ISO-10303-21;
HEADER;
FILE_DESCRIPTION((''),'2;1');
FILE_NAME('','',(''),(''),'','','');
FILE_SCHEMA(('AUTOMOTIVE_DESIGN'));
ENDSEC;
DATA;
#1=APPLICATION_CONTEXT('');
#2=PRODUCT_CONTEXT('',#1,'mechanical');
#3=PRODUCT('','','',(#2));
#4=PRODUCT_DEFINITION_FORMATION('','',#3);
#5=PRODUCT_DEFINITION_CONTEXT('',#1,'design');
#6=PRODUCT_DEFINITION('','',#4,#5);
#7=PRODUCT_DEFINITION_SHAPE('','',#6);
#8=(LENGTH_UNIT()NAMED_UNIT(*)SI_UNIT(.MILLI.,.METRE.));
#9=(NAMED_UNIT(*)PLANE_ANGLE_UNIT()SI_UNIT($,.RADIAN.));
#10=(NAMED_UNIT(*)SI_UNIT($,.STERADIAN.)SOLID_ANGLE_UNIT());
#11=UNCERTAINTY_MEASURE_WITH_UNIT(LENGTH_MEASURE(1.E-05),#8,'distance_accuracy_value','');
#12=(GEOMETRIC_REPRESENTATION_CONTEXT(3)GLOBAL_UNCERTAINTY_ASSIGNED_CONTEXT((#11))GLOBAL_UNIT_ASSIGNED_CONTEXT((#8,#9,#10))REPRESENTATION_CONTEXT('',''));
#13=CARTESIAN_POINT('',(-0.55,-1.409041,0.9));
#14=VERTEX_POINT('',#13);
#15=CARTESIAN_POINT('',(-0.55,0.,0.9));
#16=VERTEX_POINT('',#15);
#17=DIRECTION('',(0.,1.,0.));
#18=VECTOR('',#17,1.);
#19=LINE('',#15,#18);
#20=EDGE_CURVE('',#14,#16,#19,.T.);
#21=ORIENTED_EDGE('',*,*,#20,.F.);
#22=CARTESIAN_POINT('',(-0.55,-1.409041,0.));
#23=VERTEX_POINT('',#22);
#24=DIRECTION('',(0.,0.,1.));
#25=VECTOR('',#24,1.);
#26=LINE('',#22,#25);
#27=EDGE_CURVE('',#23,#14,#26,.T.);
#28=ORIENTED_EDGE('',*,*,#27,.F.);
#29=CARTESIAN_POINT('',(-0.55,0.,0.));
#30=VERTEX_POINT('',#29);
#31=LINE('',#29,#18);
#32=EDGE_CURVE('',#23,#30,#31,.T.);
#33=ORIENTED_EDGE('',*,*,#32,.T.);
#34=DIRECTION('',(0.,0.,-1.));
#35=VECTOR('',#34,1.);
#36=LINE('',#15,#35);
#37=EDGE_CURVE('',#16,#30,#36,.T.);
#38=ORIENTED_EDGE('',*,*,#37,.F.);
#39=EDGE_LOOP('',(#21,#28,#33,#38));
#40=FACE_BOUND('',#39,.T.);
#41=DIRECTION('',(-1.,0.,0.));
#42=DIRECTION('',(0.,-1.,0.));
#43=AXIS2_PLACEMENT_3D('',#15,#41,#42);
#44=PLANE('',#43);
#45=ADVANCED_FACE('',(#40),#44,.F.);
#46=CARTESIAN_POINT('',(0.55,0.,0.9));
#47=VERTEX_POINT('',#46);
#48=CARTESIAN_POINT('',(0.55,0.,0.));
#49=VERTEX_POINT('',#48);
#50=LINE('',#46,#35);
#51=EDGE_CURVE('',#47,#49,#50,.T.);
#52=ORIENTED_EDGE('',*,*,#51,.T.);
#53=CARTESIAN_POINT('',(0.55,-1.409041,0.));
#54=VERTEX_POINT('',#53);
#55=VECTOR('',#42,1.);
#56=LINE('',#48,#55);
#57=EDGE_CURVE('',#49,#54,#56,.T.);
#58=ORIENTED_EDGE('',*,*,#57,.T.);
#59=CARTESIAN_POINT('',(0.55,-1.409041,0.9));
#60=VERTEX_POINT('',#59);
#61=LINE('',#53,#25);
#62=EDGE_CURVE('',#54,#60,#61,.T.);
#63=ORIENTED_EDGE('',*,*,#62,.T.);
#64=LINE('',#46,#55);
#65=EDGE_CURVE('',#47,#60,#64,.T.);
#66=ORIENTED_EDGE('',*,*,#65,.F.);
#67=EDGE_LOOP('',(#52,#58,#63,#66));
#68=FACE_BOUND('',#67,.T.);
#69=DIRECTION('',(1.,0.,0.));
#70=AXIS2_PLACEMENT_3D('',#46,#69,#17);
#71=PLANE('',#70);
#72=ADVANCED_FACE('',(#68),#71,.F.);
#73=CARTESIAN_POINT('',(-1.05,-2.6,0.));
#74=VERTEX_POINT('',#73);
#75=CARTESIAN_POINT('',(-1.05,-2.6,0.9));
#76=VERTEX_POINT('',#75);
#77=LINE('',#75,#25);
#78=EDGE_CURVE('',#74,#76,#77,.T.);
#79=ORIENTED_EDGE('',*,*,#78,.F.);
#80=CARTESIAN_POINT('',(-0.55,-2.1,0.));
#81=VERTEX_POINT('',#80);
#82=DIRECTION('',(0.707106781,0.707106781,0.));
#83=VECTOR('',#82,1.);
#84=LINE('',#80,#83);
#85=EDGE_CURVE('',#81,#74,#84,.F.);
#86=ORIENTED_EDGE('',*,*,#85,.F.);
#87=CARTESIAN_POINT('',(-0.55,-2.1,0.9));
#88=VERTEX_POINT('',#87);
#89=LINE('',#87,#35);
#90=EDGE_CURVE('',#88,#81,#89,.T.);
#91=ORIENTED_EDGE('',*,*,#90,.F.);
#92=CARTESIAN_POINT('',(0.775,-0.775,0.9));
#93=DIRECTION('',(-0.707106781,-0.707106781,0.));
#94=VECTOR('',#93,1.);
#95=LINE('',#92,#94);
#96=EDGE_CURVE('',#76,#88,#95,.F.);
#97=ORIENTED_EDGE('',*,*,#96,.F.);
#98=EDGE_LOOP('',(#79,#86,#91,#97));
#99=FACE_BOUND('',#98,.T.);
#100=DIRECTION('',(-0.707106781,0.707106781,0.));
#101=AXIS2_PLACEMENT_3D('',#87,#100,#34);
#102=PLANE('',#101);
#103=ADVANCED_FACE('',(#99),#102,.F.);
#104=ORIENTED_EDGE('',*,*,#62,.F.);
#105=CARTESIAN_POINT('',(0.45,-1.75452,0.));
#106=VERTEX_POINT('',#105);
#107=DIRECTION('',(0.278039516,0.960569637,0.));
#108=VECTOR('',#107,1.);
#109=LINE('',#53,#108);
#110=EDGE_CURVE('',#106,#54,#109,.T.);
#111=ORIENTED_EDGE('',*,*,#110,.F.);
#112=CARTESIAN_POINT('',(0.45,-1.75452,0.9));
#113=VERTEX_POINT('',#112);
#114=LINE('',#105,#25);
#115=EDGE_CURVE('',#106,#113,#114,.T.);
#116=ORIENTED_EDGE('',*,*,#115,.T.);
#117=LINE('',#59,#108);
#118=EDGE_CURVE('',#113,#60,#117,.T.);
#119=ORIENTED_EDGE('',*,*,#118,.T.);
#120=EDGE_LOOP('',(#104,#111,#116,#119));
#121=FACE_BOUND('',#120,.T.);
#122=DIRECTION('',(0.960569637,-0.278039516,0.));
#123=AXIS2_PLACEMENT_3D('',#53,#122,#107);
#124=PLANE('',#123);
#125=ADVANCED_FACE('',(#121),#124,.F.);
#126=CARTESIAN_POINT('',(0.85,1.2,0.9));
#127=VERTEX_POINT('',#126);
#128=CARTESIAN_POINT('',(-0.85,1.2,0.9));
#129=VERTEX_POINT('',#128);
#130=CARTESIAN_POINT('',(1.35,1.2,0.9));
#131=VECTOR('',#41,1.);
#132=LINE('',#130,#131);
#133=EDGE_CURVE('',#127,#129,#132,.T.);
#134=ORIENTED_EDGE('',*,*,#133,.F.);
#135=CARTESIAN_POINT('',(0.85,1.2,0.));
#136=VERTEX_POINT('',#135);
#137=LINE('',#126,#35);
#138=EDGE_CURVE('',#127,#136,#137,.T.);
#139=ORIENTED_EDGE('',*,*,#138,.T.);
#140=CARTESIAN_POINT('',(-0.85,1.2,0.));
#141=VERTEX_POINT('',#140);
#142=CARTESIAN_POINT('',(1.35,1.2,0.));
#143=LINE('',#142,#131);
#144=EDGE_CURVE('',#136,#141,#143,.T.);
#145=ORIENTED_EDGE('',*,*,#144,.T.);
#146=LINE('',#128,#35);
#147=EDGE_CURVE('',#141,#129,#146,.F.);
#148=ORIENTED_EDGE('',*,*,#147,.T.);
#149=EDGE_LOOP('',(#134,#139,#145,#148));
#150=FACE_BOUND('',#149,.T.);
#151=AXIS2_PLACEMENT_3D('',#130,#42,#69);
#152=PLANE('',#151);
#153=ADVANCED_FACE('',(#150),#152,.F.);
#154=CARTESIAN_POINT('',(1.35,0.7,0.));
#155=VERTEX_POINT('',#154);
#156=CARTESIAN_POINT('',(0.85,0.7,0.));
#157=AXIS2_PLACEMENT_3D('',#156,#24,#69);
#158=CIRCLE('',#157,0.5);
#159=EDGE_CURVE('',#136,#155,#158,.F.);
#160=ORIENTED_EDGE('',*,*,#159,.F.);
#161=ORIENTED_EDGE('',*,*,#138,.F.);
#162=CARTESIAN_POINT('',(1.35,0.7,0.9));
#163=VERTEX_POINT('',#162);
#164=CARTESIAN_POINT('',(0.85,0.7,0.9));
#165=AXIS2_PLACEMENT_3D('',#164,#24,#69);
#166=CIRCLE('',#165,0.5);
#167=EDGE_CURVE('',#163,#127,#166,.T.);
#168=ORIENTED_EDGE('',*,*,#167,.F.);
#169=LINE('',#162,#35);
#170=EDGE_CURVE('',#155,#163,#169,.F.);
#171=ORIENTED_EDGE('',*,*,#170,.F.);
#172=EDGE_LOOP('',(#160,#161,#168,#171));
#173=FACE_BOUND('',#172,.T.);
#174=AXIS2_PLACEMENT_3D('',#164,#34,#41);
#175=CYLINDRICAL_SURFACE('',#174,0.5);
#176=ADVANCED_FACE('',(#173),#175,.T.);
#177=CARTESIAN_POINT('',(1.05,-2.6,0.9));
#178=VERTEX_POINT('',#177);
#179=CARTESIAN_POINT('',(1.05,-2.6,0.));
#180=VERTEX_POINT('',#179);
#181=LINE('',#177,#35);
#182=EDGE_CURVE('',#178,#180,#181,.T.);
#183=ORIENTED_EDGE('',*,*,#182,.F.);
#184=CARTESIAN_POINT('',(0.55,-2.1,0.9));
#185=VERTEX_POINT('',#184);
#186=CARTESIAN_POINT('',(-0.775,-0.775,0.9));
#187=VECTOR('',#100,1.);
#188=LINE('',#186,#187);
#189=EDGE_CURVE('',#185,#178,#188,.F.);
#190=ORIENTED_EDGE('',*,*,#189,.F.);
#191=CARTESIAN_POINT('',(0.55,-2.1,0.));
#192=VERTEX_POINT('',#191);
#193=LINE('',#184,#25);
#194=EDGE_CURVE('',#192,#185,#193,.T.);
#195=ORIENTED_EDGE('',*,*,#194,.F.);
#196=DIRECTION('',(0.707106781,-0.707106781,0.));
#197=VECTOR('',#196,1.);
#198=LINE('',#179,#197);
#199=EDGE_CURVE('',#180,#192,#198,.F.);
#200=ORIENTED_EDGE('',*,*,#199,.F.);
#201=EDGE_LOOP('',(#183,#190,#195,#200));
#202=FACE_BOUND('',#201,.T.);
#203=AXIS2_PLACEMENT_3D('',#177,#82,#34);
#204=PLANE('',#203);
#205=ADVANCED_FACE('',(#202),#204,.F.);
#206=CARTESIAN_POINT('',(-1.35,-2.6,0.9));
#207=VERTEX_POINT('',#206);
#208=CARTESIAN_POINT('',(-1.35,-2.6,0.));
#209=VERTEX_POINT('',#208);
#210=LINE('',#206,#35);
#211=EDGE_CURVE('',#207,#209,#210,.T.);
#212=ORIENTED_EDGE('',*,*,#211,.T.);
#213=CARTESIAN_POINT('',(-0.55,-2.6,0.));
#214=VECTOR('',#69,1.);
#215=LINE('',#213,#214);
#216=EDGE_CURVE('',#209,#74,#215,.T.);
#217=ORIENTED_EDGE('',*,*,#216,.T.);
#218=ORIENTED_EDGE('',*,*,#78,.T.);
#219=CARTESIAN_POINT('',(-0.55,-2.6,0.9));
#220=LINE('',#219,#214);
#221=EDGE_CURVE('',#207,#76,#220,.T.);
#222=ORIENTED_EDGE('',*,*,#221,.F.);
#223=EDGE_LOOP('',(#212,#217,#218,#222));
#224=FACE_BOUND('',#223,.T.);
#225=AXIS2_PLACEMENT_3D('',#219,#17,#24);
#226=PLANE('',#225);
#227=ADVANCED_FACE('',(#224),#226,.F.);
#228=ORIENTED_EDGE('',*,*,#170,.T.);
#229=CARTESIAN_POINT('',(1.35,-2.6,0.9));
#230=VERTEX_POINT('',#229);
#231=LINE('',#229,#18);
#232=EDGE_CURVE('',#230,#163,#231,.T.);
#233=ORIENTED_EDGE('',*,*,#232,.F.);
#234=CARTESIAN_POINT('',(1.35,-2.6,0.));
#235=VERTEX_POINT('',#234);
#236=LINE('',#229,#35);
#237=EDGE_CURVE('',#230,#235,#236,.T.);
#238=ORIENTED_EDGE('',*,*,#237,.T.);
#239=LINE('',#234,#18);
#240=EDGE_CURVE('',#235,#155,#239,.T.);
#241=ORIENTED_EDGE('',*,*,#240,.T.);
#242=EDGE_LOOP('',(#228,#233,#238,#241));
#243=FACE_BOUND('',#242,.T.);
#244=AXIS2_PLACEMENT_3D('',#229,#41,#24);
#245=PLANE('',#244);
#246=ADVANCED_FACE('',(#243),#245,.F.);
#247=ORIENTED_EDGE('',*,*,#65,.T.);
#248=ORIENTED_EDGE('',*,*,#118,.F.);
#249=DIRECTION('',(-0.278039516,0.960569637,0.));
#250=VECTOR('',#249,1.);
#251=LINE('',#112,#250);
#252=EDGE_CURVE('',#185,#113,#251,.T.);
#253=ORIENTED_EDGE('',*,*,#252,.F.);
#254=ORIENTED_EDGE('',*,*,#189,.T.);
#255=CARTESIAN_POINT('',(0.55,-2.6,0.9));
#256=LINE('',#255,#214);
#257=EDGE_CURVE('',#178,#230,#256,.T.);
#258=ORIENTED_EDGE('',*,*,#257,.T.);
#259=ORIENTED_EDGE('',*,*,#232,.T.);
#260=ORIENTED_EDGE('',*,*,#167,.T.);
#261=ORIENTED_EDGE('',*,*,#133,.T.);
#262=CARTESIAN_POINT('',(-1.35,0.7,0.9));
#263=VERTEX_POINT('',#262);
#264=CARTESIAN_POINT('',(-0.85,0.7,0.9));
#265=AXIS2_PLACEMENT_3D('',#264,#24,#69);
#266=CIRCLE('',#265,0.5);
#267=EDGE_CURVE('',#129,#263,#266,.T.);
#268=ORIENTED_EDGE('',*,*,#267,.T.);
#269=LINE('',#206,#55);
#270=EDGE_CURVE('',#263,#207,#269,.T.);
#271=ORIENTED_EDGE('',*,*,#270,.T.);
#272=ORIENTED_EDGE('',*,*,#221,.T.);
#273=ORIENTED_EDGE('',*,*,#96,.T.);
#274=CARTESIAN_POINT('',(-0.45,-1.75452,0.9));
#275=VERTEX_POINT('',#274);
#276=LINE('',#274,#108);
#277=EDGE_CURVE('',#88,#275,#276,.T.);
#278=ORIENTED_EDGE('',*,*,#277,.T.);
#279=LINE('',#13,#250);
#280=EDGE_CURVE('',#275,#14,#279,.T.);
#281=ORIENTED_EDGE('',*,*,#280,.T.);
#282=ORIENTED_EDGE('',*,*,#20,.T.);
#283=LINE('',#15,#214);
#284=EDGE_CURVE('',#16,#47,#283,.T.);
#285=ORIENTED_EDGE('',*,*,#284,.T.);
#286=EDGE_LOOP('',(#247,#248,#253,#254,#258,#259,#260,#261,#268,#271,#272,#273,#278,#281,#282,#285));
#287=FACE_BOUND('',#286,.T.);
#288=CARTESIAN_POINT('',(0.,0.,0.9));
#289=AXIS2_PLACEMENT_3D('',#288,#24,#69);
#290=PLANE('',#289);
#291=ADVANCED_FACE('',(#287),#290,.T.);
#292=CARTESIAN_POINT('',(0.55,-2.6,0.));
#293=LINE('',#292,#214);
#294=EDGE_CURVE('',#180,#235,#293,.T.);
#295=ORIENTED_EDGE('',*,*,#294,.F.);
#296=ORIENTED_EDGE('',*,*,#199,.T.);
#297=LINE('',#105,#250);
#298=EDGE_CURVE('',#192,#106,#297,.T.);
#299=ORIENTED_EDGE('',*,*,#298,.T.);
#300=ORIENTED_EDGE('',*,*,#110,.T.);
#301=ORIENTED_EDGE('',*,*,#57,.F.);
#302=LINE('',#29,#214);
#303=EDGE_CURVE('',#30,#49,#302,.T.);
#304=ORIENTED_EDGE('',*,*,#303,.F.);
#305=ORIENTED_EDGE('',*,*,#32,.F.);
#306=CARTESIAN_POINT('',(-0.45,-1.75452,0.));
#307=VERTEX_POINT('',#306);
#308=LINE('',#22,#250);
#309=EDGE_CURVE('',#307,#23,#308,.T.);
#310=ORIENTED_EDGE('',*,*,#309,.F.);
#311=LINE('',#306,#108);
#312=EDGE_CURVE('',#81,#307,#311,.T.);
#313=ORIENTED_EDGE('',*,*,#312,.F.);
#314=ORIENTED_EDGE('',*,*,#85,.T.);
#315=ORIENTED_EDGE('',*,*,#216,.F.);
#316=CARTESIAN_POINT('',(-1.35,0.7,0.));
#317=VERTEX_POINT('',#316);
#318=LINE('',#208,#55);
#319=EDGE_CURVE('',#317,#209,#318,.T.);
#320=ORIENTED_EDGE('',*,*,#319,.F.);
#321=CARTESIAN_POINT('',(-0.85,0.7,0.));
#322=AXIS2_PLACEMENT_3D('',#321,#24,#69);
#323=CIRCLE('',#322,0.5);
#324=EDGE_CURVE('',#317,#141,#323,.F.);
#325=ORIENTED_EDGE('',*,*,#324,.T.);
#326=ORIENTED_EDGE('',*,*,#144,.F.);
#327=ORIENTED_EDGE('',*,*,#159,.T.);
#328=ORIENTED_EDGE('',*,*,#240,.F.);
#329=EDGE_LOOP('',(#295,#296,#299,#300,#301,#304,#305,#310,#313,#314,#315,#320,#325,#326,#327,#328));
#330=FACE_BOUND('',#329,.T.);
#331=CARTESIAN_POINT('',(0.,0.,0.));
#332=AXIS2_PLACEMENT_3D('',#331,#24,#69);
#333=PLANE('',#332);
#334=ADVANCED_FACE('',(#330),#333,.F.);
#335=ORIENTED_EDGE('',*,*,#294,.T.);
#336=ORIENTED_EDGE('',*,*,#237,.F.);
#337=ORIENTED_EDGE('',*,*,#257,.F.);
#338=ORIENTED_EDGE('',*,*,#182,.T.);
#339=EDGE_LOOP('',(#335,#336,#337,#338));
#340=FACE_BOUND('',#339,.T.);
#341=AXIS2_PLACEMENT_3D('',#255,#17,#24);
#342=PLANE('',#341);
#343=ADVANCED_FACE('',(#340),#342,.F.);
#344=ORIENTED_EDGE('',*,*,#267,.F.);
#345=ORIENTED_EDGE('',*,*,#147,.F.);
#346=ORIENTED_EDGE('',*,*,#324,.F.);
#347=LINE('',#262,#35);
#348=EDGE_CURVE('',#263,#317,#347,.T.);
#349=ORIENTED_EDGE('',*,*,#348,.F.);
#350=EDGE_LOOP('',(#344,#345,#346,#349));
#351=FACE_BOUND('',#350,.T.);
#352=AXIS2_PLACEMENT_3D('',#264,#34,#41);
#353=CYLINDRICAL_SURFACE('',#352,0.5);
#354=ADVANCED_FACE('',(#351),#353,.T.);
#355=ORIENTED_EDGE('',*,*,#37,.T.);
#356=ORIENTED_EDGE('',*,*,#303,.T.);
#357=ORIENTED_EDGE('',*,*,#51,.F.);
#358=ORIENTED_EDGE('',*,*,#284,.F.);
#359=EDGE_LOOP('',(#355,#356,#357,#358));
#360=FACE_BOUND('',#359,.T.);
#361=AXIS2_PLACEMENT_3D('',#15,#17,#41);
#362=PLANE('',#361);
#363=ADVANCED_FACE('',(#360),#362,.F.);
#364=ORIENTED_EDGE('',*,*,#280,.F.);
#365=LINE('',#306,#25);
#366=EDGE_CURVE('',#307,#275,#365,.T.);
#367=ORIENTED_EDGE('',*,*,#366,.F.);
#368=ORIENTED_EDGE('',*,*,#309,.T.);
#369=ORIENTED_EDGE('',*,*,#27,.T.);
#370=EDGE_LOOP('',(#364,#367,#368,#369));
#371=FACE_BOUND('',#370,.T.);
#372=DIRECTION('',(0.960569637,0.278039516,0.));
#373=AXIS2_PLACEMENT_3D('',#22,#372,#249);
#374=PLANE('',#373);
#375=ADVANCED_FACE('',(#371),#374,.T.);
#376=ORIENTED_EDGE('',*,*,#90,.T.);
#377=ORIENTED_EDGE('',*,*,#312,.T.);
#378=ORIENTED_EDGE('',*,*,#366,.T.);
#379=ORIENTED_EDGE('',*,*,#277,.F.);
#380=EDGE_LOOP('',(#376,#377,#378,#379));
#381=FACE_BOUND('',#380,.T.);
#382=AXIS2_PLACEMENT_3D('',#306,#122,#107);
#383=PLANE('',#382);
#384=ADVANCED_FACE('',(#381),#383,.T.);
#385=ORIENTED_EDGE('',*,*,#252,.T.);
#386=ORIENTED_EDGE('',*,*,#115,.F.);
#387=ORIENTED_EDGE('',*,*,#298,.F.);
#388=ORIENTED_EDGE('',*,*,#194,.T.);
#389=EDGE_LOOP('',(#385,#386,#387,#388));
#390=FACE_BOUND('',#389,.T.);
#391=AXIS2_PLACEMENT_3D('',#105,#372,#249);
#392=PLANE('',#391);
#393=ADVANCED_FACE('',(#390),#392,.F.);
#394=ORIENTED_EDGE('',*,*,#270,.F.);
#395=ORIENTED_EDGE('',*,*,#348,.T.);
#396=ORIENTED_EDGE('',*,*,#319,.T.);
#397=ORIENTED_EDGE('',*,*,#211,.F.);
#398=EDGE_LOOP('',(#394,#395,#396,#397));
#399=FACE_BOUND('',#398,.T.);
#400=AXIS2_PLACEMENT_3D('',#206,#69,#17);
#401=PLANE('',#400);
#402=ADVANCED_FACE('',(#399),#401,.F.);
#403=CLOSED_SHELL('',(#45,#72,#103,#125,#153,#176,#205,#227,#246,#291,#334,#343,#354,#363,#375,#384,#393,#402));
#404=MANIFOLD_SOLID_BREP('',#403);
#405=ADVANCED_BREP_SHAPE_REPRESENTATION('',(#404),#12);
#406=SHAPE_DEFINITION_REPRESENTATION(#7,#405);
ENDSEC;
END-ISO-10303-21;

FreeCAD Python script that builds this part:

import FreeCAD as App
import Part
import Sketcher
from FreeCAD import Vector


def edges_at(feature, points):
    """Names of the edges that pass closest to the given points."""
    edges = feature.Shape.Edges
    near = lambda p: min(range(len(edges)), key=lambda i: edges[i].distToShape(Part.Vertex(*p))[0])
    return sorted({f"Edge{near(p) + 1}" for p in points})

doc = App.newDocument("Part")
body = doc.addObject("PartDesign::Body", "Body")

# Sketch on XY plane
sketch1 = body.newObject("Sketcher::SketchObject", "Sketch")
sketch1.AttachmentSupport = (doc.getObject("XY_Plane"), [""])
sketch1.MapMode = "FlatFace"
sketch1.addGeometry([
    Part.LineSegment(Vector(-0.6, 0, 0), Vector(0.6, 0, 0)),  # 0
    Part.LineSegment(Vector(0.6, 0, 0), Vector(0.6, -2.6, 0)),  # 1
    Part.LineSegment(Vector(0.6, -2.6, 0), Vector(1.4, -2.6, 0)),  # 2
    Part.LineSegment(Vector(1.4, -2.6, 0), Vector(1.4, 1.2, 0)),  # 3
    Part.LineSegment(Vector(1.4, 1.2, 0), Vector(-1.4, 1.2, 0)),  # 4
    Part.LineSegment(Vector(-1.4, 1.2, 0), Vector(-1.4, -2.6, 0)),  # 5
    Part.LineSegment(Vector(-1.4, -2.6, 0), Vector(-0.6, -2.6, 0)),  # 6
    Part.LineSegment(Vector(-0.6, -2.6, 0), Vector(-0.6, 0, 0)),  # 7
], False)
sketch1.addConstraint([
    Sketcher.Constraint("Coincident", 0, 2, 1, 1),
    Sketcher.Constraint("Coincident", 1, 2, 2, 1),
    Sketcher.Constraint("Coincident", 2, 2, 3, 1),
    Sketcher.Constraint("Coincident", 3, 2, 4, 1),
    Sketcher.Constraint("Coincident", 4, 2, 5, 1),
    Sketcher.Constraint("Coincident", 5, 2, 6, 1),
    Sketcher.Constraint("Coincident", 6, 2, 7, 1),
    Sketcher.Constraint("Coincident", 7, 2, 0, 1),
    Sketcher.Constraint("Horizontal", 0),
    Sketcher.Constraint("Vertical", 1),
    Sketcher.Constraint("Horizontal", 2),
    Sketcher.Constraint("Vertical", 3),
    Sketcher.Constraint("Horizontal", 4),
    Sketcher.Constraint("Vertical", 5),
    Sketcher.Constraint("Horizontal", 6),
    Sketcher.Constraint("Vertical", 7),
    Sketcher.Constraint("Symmetric", 0, 2, 7, 2, -1, 1),
    Sketcher.Constraint("Symmetric", 2, 2, 5, 2, -2),
    Sketcher.Constraint("DistanceX", 0, 1, 0, 2, 1.1),
    Sketcher.Constraint("DistanceX", 2, 1, 2, 2, 0.8),
    Sketcher.Constraint("DistanceY", 1, 2, 1, 1, 2.6),
    Sketcher.Constraint("DistanceY", 3, 1, 3, 2, 3.8),
])
pad1 = body.newObject("PartDesign::Pad", "Pad")
pad1.Profile = sketch1
pad1.Length = 0.9
doc.recompute()

chamfer = body.newObject("PartDesign::Chamfer", "Chamfer")
chamfer.Base = (pad1, edges_at(pad1, [(-0.55, -2.6, 0.45), (0.55, -2.6, 0.45)]))
chamfer.Size = 0.5
doc.recompute()

fillet = body.newObject("PartDesign::Fillet", "Fillet")
fillet.Base = (chamfer, edges_at(chamfer, [(-1.35, 1.2, 0.45), (1.35, 1.2, 0.45)]))
fillet.Radius = 0.5

# Sketch on XY plane
sketch2 = body.newObject("Sketcher::SketchObject", "Sketch001")
sketch2.AttachmentSupport = (doc.getObject("XY_Plane"), [""])
sketch2.MapMode = "FlatFace"
sketch2.AttachmentOffset = App.Placement(Vector(0, 0, 0.9), App.Rotation())
sketch2.addGeometry([
    Part.LineSegment(Vector(-0.55, -1.41, 0), Vector(-0.55, -2.1, 0)),
    Part.LineSegment(Vector(-0.55, -2.1, 0), Vector(-0.45, -1.75, 0)),
    Part.LineSegment(Vector(-0.45, -1.75, 0), Vector(-0.55, -1.41, 0)),
], False)
sketch2.addConstraint([
    Sketcher.Constraint("Coincident", 0, 2, 1, 1),
    Sketcher.Constraint("Coincident", 1, 2, 2, 1),
    Sketcher.Constraint("Coincident", 2, 2, 0, 1),
    Sketcher.Constraint("Vertical", 0),
    Sketcher.Constraint("Equal", 1, 2),
    Sketcher.Constraint("DistanceY", 0, 2, -1, 1, 2.1),
    Sketcher.Constraint("DistanceX", 0, 2, 1, 2, 0.1),
    Sketcher.Constraint("DistanceX", 0, 2, -1, 1, 0.55),
    Sketcher.Constraint("DistanceY", 0, 2, 0, 1, 0.690959),
])
pad2 = body.newObject("PartDesign::Pad", "Pad001")
pad2.Profile = sketch2
pad2.Length = 0.9
pad2.Reversed = True
doc.recompute()

mirrored = body.newObject("PartDesign::Mirrored", "Mirrored")
mirrored.Originals = [pad2]
mirrored.MirrorPlane = (doc.getObject("YZ_Plane"), [""])
body.Tip = mirrored

doc.recompute()
